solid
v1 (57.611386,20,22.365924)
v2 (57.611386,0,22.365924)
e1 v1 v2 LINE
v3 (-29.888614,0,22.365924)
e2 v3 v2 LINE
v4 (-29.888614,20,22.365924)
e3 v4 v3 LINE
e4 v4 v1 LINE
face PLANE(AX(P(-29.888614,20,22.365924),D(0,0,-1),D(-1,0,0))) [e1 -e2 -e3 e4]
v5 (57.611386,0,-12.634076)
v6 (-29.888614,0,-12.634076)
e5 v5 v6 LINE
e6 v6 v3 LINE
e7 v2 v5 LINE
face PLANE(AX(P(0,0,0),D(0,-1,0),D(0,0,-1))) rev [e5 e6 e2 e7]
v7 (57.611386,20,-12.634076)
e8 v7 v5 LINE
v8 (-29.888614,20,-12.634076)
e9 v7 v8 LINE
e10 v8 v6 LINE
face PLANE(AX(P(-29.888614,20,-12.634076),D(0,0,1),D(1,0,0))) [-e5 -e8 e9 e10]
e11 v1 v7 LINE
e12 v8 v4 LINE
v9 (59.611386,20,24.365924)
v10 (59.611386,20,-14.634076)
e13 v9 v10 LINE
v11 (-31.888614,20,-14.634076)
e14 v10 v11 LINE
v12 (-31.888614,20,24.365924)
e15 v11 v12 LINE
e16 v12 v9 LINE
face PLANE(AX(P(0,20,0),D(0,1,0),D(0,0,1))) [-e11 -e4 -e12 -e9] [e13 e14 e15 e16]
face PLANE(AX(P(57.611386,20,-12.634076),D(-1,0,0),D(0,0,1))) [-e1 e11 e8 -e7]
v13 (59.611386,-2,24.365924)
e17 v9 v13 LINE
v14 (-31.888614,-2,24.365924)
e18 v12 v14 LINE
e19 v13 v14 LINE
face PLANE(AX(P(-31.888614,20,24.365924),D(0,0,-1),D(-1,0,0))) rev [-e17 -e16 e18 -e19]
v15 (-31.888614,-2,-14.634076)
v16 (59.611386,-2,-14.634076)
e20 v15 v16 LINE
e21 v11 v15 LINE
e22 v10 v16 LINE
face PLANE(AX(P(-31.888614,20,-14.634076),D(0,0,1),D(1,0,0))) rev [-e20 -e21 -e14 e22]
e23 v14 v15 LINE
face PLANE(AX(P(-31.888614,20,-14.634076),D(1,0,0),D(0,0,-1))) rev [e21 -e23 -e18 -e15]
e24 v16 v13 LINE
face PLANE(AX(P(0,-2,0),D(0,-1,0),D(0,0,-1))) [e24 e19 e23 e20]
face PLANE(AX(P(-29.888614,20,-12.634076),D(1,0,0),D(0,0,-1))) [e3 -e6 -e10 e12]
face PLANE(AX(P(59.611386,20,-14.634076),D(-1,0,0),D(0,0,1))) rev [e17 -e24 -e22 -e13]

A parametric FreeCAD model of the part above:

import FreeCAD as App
import Part
import Sketcher

doc = App.newDocument("Part")
params = doc.addObject("Spreadsheet::Sheet", "Params")
for row, (alias, value) in enumerate([
    ("sketch1_height", "39 mm"),
    ("sketch1_height2", "35 mm"),
    ("sketch1_width", "91.5 mm"),
    ("sketch1_width2", "87.5 mm"),
    ("pad1_length", "20 mm"),
    ("sketch2_height", "39 mm"),
    ("sketch2_width", "91.5 mm"),
    ("pad2_length", "2 mm"),
], start=1):
    params.set(f"A{row}", alias)
    params.set(f"B{row}", "=" + value)
    params.setAlias(f"B{row}", alias)

body = doc.addObject("PartDesign::Body", "Body")

# Sketch on XZ plane
sketch1 = doc.addObject("Sketcher::SketchObject", "Sketch")
body.addObject(sketch1)
sketch1.AttachmentSupport = (doc.XZ_Plane, [""])
sketch1.MapMode = "FlatFace"
sketch1.addGeometry(Part.LineSegment(App.Vector(-32, -15, 0), App.Vector(-32, 24, 0)), False)
sketch1.addGeometry(Part.LineSegment(App.Vector(-32, 24, 0), App.Vector(60, 24, 0)), False)
sketch1.addGeometry(Part.LineSegment(App.Vector(60, 24, 0), App.Vector(60, -15, 0)), False)
sketch1.addGeometry(Part.LineSegment(App.Vector(60, -15, 0), App.Vector(-32, -15, 0)), False)
sketch1.addGeometry(Part.LineSegment(App.Vector(58, 22, 0), App.Vector(-30, 22, 0)), False)
sketch1.addGeometry(Part.LineSegment(App.Vector(-30, 22, 0), App.Vector(-30, -13, 0)), False)
sketch1.addGeometry(Part.LineSegment(App.Vector(-30, -13, 0), App.Vector(58, -13, 0)), False)
sketch1.addGeometry(Part.LineSegment(App.Vector(58, -13, 0), App.Vector(58, 22, 0)), False)
sketch1.addConstraint(Sketcher.Constraint("Coincident", 0, 2, 1, 1))
sketch1.addConstraint(Sketcher.Constraint("Coincident", 1, 2, 2, 1))
sketch1.addConstraint(Sketcher.Constraint("Coincident", 2, 2, 3, 1))
sketch1.addConstraint(Sketcher.Constraint("Coincident", 3, 2, 0, 1))
sketch1.addConstraint(Sketcher.Constraint("Coincident", 4, 2, 5, 1))
sketch1.addConstraint(Sketcher.Constraint("Coincident", 5, 2, 6, 1))
sketch1.addConstraint(Sketcher.Constraint("Coincident", 6, 2, 7, 1))
sketch1.addConstraint(Sketcher.Constraint("Coincident", 7, 2, 4, 1))
sketch1.addConstraint(Sketcher.Constraint("Vertical", 0))
sketch1.addConstraint(Sketcher.Constraint("Horizontal", 1))
sketch1.addConstraint(Sketcher.Constraint("Vertical", 2))
sketch1.addConstraint(Sketcher.Constraint("Horizontal", 3))
sketch1.addConstraint(Sketcher.Constraint("Horizontal", 4))
sketch1.addConstraint(Sketcher.Constraint("Vertical", 5))
sketch1.addConstraint(Sketcher.Constraint("Horizontal", 6))
sketch1.addConstraint(Sketcher.Constraint("Vertical", 7))
sketch1.addConstraint(Sketcher.Constraint("DistanceY", 0, 1, 0, 2, 39.0))
sketch1.addConstraint(Sketcher.Constraint("DistanceY", 5, 2, 5, 1, 35.0))
sketch1.addConstraint(Sketcher.Constraint("DistanceX", 1, 1, 1, 2, 91.5))
sketch1.addConstraint(Sketcher.Constraint("DistanceX", 4, 2, 4, 1, 87.5))
sketch1.addConstraint(Sketcher.Constraint("DistanceX", 0, 2, 4, 2, 2.0))
sketch1.addConstraint(Sketcher.Constraint("DistanceY", 4, 2, 0, 2, 2.0))
sketch1.addConstraint(Sketcher.Constraint("DistanceX", 0, 2, -1, 1, 31.888614))
sketch1.addConstraint(Sketcher.Constraint("DistanceY", -1, 1, 0, 2, 24.365924))
sketch1.setExpression("Constraints[16]", "Params.sketch1_height")
sketch1.setExpression("Constraints[17]", "Params.sketch1_height2")
sketch1.setExpression("Constraints[18]", "Params.sketch1_width")
sketch1.setExpression("Constraints[19]", "Params.sketch1_width2")
pad1 = doc.addObject("PartDesign::Pad", "Pad")
body.addObject(pad1)
pad1.Profile = sketch1
pad1.setExpression("Length", "Params.pad1_length")
pad1.Reversed = True

# Sketch on XZ plane
sketch2 = doc.addObject("Sketcher::SketchObject", "Sketch001")
body.addObject(sketch2)
sketch2.AttachmentSupport = (doc.XZ_Plane, [""])
sketch2.MapMode = "FlatFace"
sketch2.addGeometry(Part.LineSegment(App.Vector(-32, 24, 0), App.Vector(-32, -15, 0)), False)
sketch2.addGeometry(Part.LineSegment(App.Vector(-32, -15, 0), App.Vector(60, -15, 0)), False)
sketch2.addGeometry(Part.LineSegment(App.Vector(60, -15, 0), App.Vector(60, 24, 0)), False)
sketch2.addGeometry(Part.LineSegment(App.Vector(60, 24, 0), App.Vector(-32, 24, 0)), False)
sketch2.addConstraint(Sketcher.Constraint("Coincident", 0, 2, 1, 1))
sketch2.addConstraint(Sketcher.Constraint("Coincident", 1, 2, 2, 1))
sketch2.addConstraint(Sketcher.Constraint("Coincident", 2, 2, 3, 1))
sketch2.addConstraint(Sketcher.Constraint("Coincident", 3, 2, 0, 1))
sketch2.addConstraint(Sketcher.Constraint("Vertical", 0))
sketch2.addConstraint(Sketcher.Constraint("Horizontal", 1))
sketch2.addConstraint(Sketcher.Constraint("Vertical", 2))
sketch2.addConstraint(Sketcher.Constraint("Horizontal", 3))
sketch2.addConstraint(Sketcher.Constraint("DistanceY", 0, 2, 0, 1, 39.0))
sketch2.addConstraint(Sketcher.Constraint("DistanceX", 1, 1, 1, 2, 91.5))
sketch2.addConstraint(Sketcher.Constraint("DistanceX", 0, 2, -1, 1, 31.888614))
sketch2.addConstraint(Sketcher.Constraint("DistanceY", 0, 2, -1, 1, 14.634076))
sketch2.setExpression("Constraints[8]", "Params.sketch2_height")
sketch2.setExpression("Constraints[9]", "Params.sketch2_width")
pad2 = doc.addObject("PartDesign::Pad", "Pad001")
body.addObject(pad2)
pad2.Profile = sketch2
pad2.setExpression("Length", "Params.pad2_length")

doc.recompute()
